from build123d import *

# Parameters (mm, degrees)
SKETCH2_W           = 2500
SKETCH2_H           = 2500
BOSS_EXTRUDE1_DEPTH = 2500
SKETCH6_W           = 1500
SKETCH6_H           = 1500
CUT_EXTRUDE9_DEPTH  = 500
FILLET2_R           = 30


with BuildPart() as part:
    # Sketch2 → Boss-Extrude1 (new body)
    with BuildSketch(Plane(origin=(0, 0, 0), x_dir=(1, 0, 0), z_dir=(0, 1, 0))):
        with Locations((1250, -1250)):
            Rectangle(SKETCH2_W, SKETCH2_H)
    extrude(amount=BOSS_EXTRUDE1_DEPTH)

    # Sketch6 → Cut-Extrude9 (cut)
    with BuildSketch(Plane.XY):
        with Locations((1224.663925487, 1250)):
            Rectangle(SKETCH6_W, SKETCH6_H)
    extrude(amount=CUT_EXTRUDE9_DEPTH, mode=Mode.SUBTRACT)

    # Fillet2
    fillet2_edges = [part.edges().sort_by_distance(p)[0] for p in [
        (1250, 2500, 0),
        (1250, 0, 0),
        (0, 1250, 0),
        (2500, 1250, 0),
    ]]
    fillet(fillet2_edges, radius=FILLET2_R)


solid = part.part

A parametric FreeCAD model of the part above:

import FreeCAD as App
import Part
import Sketcher
from FreeCAD import Vector


def edges_at(feature, points):
    """Names of the edges that pass closest to the given points."""
    edges = feature.Shape.Edges
    near = lambda p: min(range(len(edges)), key=lambda i: edges[i].distToShape(Part.Vertex(*p))[0])
    return sorted({f"Edge{near(p) + 1}" for p in points})

doc = App.newDocument("Part")
body = doc.addObject("PartDesign::Body", "Body")

# Sketch on XZ plane
sketch1 = doc.addObject("Sketcher::SketchObject", "Sketch")
body.addObject(sketch1)
sketch1.AttachmentSupport = (doc.XZ_Plane, [""])
sketch1.MapMode = "FlatFace"
sketch1.addGeometry([
    Part.LineSegment(Vector(0, 0, 0), Vector(0, 2500, 0)),
    Part.LineSegment(Vector(0, 2500, 0), Vector(2500, 2500, 0)),
    Part.LineSegment(Vector(2500, 2500, 0), Vector(2500, 0, 0)),
    Part.LineSegment(Vector(2500, 0, 0), Vector(0, 0, 0)),
], False)
sketch1.addConstraint([
    Sketcher.Constraint("Coincident", 0, 2, 1, 1),
    Sketcher.Constraint("Coincident", 1, 2, 2, 1),
    Sketcher.Constraint("Coincident", 2, 2, 3, 1),
    Sketcher.Constraint("Coincident", 3, 2, 0, 1),
    Sketcher.Constraint("Vertical", 0),
    Sketcher.Constraint("Horizontal", 1),
    Sketcher.Constraint("Vertical", 2),
    Sketcher.Constraint("Horizontal", 3),
    Sketcher.Constraint("Coincident", 3, 2, -1, 1),
    Sketcher.Constraint("Equal", 3, 0),
    Sketcher.Constraint("DistanceX", 1, 1, 1, 2, 2500.0),
])
pad1 = doc.addObject("PartDesign::Pad", "Pad")
body.addObject(pad1)
pad1.Profile = sketch1
pad1.Length = 2500
pad1.Reversed = True

# Sketch on XY plane
sketch2 = doc.addObject("Sketcher::SketchObject", "Sketch001")
body.addObject(sketch2)
sketch2.AttachmentSupport = (doc.XY_Plane, [""])
sketch2.MapMode = "FlatFace"
sketch2.addGeometry([
    Part.LineSegment(Vector(475, 2000, 0), Vector(475, 500, 0)),
    Part.LineSegment(Vector(475, 500, 0), Vector(1975, 500, 0)),
    Part.LineSegment(Vector(1975, 500, 0), Vector(1975, 2000, 0)),
    Part.LineSegment(Vector(1975, 2000, 0), Vector(475, 2000, 0)),
], False)
sketch2.addConstraint([
    Sketcher.Constraint("Coincident", 0, 2, 1, 1),
    Sketcher.Constraint("Coincident", 1, 2, 2, 1),
    Sketcher.Constraint("Coincident", 2, 2, 3, 1),
    Sketcher.Constraint("Coincident", 3, 2, 0, 1),
    Sketcher.Constraint("Vertical", 0),
    Sketcher.Constraint("Horizontal", 1),
    Sketcher.Constraint("Vertical", 2),
    Sketcher.Constraint("Horizontal", 3),
    Sketcher.Constraint("Equal", 3, 0),
    Sketcher.Constraint("DistanceX", 1, 1, 1, 2, 1500.0),
    Sketcher.Constraint("DistanceY", -1, 1, 0, 2, 500.0),
    Sketcher.Constraint("DistanceX", -1, 1, 0, 2, 474.663925),
])
pocket1 = doc.addObject("PartDesign::Pocket", "Pocket")
body.addObject(pocket1)
pocket1.Profile = sketch2
pocket1.Length = 500
pocket1.Reversed = True
doc.recompute()

fillet = doc.addObject("PartDesign::Fillet", "Fillet")
body.addObject(fillet)
fillet.Base = (pocket1, edges_at(pocket1, [
    (1250, 2500, 0),
    (1250, 0, 0),
    (0, 1250, 0),
    (2500, 1250, 0),
]))
fillet.Radius = 30

doc.recompute()
